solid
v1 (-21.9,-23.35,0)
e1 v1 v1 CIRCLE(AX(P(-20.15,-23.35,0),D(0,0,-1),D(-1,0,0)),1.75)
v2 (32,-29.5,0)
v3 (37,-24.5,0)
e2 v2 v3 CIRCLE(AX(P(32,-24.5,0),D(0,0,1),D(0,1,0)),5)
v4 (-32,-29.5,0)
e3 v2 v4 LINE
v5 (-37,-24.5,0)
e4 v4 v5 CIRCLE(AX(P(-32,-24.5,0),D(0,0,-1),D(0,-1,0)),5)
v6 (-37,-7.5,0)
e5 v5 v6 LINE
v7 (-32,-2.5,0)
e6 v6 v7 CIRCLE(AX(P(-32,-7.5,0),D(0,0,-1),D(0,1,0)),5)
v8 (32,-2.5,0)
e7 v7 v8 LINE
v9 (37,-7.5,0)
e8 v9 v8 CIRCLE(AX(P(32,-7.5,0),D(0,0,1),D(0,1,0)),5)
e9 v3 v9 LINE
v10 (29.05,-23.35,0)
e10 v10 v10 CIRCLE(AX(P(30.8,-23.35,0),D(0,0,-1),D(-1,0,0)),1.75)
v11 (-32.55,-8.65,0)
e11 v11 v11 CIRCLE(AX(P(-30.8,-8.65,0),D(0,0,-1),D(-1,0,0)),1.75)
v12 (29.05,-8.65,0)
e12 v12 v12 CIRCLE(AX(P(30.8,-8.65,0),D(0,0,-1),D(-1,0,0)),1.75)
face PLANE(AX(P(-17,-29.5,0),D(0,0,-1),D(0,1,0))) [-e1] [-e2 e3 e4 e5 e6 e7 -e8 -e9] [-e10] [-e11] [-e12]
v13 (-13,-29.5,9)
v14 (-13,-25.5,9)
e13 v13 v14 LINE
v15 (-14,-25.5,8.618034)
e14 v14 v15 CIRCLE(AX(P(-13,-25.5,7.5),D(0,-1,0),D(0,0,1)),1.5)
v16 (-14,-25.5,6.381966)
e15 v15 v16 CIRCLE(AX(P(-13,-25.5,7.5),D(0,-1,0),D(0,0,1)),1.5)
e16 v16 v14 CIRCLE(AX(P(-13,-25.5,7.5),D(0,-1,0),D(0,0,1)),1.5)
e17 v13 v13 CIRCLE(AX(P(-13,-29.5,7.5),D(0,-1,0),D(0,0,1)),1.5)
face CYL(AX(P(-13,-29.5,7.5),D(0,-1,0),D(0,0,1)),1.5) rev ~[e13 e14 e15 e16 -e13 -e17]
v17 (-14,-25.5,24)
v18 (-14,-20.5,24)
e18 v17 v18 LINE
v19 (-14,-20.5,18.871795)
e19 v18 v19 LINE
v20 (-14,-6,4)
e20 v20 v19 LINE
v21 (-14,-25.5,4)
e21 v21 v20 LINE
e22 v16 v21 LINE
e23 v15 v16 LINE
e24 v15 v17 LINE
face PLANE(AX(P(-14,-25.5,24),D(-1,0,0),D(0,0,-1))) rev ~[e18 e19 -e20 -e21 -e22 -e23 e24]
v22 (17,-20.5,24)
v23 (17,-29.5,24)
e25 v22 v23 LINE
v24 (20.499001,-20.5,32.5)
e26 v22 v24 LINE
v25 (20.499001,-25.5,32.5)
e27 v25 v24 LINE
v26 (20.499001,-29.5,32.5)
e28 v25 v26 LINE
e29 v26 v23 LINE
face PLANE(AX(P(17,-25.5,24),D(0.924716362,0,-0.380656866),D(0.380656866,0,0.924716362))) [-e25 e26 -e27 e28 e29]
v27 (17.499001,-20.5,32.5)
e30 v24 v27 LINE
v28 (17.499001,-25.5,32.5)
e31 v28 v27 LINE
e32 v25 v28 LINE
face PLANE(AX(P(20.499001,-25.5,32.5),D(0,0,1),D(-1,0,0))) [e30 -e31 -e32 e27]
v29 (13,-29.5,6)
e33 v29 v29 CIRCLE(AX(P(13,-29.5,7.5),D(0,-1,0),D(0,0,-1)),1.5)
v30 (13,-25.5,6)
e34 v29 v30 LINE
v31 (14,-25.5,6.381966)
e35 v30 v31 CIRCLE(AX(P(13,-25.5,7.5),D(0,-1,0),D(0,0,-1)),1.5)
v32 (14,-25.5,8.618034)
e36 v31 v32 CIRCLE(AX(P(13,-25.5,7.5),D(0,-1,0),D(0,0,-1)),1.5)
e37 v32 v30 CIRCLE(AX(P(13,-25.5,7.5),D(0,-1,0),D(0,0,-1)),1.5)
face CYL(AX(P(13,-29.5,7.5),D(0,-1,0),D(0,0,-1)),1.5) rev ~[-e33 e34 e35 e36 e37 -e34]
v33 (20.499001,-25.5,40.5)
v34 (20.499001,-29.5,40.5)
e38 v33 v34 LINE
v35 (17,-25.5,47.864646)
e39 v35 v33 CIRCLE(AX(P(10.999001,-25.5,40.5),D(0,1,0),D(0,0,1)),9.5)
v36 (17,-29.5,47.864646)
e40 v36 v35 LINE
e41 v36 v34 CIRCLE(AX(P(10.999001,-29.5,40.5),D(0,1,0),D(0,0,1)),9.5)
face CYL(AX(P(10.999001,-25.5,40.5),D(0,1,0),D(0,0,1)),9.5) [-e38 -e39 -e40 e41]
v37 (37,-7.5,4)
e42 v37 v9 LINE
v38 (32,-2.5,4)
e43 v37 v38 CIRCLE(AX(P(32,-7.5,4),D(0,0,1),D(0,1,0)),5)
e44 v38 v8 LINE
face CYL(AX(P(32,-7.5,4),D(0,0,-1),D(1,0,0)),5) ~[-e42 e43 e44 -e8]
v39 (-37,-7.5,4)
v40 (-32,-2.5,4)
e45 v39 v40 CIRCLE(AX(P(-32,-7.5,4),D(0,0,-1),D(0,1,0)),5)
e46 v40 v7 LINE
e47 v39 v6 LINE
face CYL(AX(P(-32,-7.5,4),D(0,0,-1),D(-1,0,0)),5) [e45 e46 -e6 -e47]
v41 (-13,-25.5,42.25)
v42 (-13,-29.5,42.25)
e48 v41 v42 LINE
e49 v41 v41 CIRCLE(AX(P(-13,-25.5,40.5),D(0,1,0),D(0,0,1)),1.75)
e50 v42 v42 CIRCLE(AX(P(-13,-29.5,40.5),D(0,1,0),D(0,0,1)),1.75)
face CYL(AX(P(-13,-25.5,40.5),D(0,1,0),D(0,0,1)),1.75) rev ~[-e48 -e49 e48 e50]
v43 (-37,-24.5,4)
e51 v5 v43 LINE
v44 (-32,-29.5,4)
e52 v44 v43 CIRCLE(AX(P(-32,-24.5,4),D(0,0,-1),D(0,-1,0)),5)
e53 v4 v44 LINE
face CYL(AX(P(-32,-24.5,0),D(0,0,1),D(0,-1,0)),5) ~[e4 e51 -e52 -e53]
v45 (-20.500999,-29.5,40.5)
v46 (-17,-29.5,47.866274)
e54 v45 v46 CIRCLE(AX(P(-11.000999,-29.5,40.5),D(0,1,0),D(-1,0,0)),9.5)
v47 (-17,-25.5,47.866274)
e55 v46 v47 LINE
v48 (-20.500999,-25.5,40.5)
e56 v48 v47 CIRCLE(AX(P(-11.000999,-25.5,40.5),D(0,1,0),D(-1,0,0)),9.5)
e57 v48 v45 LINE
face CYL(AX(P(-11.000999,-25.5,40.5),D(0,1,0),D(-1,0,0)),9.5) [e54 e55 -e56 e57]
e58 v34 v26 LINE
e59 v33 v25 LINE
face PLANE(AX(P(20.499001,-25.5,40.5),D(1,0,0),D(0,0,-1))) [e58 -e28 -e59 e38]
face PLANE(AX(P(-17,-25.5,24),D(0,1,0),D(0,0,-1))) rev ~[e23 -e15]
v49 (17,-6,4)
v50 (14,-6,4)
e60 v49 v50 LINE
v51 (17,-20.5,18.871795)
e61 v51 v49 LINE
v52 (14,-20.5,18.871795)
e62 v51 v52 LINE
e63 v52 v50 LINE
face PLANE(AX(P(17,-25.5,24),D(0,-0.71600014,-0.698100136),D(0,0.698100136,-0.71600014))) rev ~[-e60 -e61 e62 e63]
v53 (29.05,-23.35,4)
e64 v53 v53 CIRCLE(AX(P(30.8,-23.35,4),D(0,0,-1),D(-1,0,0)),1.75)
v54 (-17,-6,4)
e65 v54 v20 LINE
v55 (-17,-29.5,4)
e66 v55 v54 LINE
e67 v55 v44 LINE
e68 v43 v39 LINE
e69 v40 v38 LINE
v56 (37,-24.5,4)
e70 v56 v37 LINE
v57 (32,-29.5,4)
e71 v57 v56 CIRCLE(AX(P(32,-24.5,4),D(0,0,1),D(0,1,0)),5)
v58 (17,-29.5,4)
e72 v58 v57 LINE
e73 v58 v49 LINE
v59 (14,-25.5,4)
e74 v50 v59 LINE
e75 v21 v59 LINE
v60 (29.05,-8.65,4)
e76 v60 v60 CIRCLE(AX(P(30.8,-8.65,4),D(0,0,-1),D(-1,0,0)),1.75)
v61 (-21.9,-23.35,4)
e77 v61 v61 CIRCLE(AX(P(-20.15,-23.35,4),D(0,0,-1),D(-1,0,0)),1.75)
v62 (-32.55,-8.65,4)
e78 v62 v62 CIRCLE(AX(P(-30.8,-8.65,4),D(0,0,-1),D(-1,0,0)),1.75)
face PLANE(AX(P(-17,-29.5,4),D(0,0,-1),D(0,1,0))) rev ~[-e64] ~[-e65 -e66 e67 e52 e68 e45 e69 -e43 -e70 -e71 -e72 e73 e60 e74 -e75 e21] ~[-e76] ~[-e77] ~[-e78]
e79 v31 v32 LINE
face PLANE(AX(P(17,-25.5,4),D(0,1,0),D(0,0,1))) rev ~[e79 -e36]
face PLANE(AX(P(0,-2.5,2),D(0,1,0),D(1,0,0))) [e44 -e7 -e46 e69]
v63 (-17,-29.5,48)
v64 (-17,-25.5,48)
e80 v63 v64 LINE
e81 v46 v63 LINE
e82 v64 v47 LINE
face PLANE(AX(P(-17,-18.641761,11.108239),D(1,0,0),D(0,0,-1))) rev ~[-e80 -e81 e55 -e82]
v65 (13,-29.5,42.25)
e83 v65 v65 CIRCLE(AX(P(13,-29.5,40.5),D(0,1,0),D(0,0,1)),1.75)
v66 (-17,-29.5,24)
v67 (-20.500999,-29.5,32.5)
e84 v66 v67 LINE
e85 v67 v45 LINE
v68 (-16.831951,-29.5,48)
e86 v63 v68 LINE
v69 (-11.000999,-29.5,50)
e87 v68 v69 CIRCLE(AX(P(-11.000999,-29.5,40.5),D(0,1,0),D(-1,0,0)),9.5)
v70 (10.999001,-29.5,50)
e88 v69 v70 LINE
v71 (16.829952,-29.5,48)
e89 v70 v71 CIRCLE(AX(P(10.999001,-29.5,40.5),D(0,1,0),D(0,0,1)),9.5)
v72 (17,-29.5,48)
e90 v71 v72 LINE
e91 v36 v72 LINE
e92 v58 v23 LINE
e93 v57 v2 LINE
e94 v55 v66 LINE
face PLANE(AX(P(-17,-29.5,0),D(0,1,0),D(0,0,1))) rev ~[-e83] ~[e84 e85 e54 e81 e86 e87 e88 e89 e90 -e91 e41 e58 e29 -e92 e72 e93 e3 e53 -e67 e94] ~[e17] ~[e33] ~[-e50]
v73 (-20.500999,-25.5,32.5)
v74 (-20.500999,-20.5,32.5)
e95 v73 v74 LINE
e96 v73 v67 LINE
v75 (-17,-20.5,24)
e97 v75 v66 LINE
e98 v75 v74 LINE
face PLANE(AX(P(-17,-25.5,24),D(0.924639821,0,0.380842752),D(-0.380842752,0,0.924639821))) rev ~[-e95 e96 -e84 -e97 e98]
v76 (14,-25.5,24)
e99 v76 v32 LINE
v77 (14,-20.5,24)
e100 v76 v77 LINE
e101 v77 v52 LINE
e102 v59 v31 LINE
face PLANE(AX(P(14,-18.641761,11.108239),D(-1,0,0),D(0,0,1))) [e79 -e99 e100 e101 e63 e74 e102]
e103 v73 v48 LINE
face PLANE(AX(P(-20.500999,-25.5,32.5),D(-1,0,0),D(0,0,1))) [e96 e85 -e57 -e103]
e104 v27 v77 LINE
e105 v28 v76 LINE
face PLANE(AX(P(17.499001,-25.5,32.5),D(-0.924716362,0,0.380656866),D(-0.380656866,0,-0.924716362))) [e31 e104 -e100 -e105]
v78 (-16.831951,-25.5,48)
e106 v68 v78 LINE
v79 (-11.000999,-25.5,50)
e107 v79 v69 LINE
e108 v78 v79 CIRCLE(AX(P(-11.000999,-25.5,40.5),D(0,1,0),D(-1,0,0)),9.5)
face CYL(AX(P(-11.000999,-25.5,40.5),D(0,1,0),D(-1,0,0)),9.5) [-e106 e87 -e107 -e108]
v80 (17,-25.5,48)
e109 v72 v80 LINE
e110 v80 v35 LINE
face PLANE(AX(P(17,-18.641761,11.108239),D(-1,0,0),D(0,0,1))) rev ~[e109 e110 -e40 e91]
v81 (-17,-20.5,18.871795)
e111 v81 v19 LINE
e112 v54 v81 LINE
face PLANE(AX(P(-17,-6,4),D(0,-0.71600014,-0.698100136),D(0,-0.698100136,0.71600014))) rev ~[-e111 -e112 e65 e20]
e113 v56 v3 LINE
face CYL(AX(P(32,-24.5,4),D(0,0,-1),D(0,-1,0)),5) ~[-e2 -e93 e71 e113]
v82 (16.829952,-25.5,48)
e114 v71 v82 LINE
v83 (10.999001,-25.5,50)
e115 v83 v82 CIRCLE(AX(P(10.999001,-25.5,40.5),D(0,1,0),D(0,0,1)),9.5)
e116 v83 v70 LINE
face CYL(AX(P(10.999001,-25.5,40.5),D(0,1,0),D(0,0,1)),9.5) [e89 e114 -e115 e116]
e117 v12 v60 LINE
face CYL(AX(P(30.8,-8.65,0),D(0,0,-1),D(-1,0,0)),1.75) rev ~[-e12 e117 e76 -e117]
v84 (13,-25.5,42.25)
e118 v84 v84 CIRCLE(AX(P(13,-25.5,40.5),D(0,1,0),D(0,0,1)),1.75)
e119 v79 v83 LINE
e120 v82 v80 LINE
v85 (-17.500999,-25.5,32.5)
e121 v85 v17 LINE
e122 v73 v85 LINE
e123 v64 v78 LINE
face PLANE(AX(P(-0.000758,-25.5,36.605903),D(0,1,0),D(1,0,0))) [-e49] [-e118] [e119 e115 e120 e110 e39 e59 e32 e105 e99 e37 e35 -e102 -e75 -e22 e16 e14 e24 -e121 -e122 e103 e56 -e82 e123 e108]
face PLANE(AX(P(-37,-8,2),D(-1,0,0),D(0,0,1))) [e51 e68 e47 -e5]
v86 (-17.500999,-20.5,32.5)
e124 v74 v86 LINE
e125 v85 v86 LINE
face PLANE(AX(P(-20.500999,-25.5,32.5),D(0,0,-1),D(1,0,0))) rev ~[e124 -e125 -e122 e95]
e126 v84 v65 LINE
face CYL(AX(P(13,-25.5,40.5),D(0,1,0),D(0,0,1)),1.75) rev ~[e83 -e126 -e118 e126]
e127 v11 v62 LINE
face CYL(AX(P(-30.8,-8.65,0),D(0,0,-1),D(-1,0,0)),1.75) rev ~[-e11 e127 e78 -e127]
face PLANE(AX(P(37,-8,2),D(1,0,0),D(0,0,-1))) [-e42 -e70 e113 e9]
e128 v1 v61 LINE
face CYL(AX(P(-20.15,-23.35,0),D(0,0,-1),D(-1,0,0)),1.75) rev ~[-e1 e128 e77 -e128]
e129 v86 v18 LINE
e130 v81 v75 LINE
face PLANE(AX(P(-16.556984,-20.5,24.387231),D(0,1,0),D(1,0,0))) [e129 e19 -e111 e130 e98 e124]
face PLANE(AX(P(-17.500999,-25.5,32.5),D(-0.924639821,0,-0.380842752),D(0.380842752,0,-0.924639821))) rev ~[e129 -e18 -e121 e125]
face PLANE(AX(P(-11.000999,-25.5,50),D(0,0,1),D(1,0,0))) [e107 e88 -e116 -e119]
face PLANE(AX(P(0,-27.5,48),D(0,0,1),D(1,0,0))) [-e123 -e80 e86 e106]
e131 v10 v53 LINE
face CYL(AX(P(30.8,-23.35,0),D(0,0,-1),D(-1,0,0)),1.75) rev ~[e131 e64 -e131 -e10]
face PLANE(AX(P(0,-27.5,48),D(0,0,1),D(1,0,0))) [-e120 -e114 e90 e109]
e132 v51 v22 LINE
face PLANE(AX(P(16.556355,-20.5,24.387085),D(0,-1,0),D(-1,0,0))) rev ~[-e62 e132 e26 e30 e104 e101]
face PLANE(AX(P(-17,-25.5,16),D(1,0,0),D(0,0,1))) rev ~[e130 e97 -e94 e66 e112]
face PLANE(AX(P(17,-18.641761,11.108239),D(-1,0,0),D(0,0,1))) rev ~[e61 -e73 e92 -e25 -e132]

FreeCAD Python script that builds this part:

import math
import FreeCAD as App
import Part
import Sketcher
Q = App.Units.Quantity


def edges_at(feature, points):
    """Names of the edges that pass closest to the given points."""
    edges = feature.Shape.Edges
    near = lambda p: min(range(len(edges)), key=lambda i: edges[i].distToShape(Part.Vertex(*p))[0])
    return sorted({f"Edge{near(p) + 1}" for p in points})

doc = App.newDocument("Part")
body = doc.addObject("PartDesign::Body", "Body")

# Sketch on XY plane
sketch1 = body.newObject("Sketcher::SketchObject", "Sketch")
sketch1.AttachmentSupport = (doc.getObject("XY_Plane"), [""])
sketch1.MapMode = "FlatFace"
sketch1.addGeometry([
    Part.LineSegment(App.Vector(-17, 26, 0), App.Vector(-17, -26, 0)),
    Part.LineSegment(App.Vector(-17, -26, 0), App.Vector(17, -26, 0)),
    Part.LineSegment(App.Vector(17, -26, 0), App.Vector(17, 26, 0)),
    Part.LineSegment(App.Vector(17, 26, 0), App.Vector(-17, 26, 0)),
], False)
sketch1.addConstraint([
    Sketcher.Constraint("Coincident", 0, 2, 1, 1),
    Sketcher.Constraint("Coincident", 1, 2, 2, 1),
    Sketcher.Constraint("Coincident", 2, 2, 3, 1),
    Sketcher.Constraint("Coincident", 3, 2, 0, 1),
    Sketcher.Constraint("Vertical", 0),
    Sketcher.Constraint("Horizontal", 1),
    Sketcher.Constraint("Vertical", 2),
    Sketcher.Constraint("Horizontal", 3),
    Sketcher.Constraint("Symmetric", 0, 2, 2, 2, -1, 1),
    Sketcher.Constraint("DistanceX", 1, 1, 1, 2, Q("34 mm")),
    Sketcher.Constraint("DistanceY", 0, 2, 0, 1, Q("51 mm")),
])
pad1 = body.newObject("PartDesign::Pad", "Pad")
pad1.Profile = sketch1
pad1.Length = 4

# Sketch on XZ plane
sketch2 = body.newObject("Sketcher::SketchObject", "Sketch001")
sketch2.AttachmentSupport = (doc.getObject("XZ_Plane"), [""])
sketch2.MapMode = "FlatFace"
sketch2.AttachmentOffset = App.Placement(App.Vector(0, 0, 25.5), App.Rotation())
sketch2.addGeometry([
    Part.LineSegment(App.Vector(-17, 15, 0), App.Vector(-17, 0, 0)),
    Part.LineSegment(App.Vector(-17, 0, 0), App.Vector(17, 0, 0)),
    Part.LineSegment(App.Vector(17, 0, 0), App.Vector(17, 15, 0)),
    Part.LineSegment(App.Vector(17, 15, 0), App.Vector(-17, 15, 0)),
], False)
sketch2.addConstraint([
    Sketcher.Constraint("Coincident", 0, 2, 1, 1),
    Sketcher.Constraint("Coincident", 1, 2, 2, 1),
    Sketcher.Constraint("Coincident", 2, 2, 3, 1),
    Sketcher.Constraint("Coincident", 3, 2, 0, 1),
    Sketcher.Constraint("Vertical", 0),
    Sketcher.Constraint("Horizontal", 1),
    Sketcher.Constraint("Vertical", 2),
    Sketcher.Constraint("Horizontal", 3),
    Sketcher.Constraint("Symmetric", 0, 2, 1, 2, -1, 1),
    Sketcher.Constraint("DistanceX", 1, 1, 1, 2, Q("34 mm")),
    Sketcher.Constraint("DistanceY", 0, 2, 0, 1, Q("15 mm")),
])
pad2 = body.newObject("PartDesign::Pad", "Pad001")
pad2.Profile = sketch2
pad2.Length = 4

# Sketch on XZ plane
sketch3 = body.newObject("Sketcher::SketchObject", "Sketch002")
sketch3.AttachmentSupport = (doc.getObject("XZ_Plane"), [""])
sketch3.MapMode = "FlatFace"
sketch3.AttachmentOffset = App.Placement(App.Vector(0, 0, 29.5), App.Rotation())
sketch3.addGeometry([
    Part.Circle(App.Vector(13, 7.5, 0), App.Vector(0, 0, 1), 1.5),
    Part.Circle(App.Vector(-13, 7.5, 0), App.Vector(0, 0, 1), 1.5),
], False)
sketch3.addConstraint([
    Sketcher.Constraint("Equal", 0, 1),
    Sketcher.Constraint("Symmetric", 0, 3, 1, 3, -2),
    Sketcher.Constraint("Diameter", 0, Q("3 mm")),
    Sketcher.Constraint("DistanceX", -1, 1, 0, 3, Q("13 mm")),
    Sketcher.Constraint("DistanceY", -1, 1, 0, 3, Q("7.5 mm")),
])
pocket1 = body.newObject("PartDesign::Pocket", "Pocket")
pocket1.Profile = sketch3
pocket1.Length = 4

# Sketch on XZ plane
sketch4 = body.newObject("Sketcher::SketchObject", "Sketch003")
sketch4.AttachmentSupport = (doc.getObject("XZ_Plane"), [""])
sketch4.MapMode = "FlatFace"
sketch4.AttachmentOffset = App.Placement(App.Vector(0, 0, -25.5), App.Rotation())
sketch4.addGeometry([
    Part.LineSegment(App.Vector(-17, 0, 0), App.Vector(-17, 4, 0)),
    Part.LineSegment(App.Vector(-17, 4, 0), App.Vector(17, 4, 0)),
    Part.LineSegment(App.Vector(17, 4, 0), App.Vector(17, 0, 0)),
    Part.LineSegment(App.Vector(17, 0, 0), App.Vector(-17, 0, 0)),
], False)
sketch4.addConstraint([
    Sketcher.Constraint("Coincident", 0, 2, 1, 1),
    Sketcher.Constraint("Coincident", 1, 2, 2, 1),
    Sketcher.Constraint("Coincident", 2, 2, 3, 1),
    Sketcher.Constraint("Coincident", 3, 2, 0, 1),
    Sketcher.Constraint("Vertical", 0),
    Sketcher.Constraint("Horizontal", 1),
    Sketcher.Constraint("Vertical", 2),
    Sketcher.Constraint("Horizontal", 3),
    Sketcher.Constraint("Symmetric", 2, 2, 3, 2, -1, 1),
    Sketcher.Constraint("DistanceX", 1, 1, 1, 2, Q("34 mm")),
    Sketcher.Constraint("DistanceY", 0, 1, 0, 2, Q("4 mm")),
])
pocket2 = body.newObject("PartDesign::Pocket", "Pocket001")
pocket2.Profile = sketch4
pocket2.Length = 5
pocket2.Reversed = True

# Sketch on XZ plane
sketch5 = body.newObject("Sketcher::SketchObject", "Sketch004")
sketch5.AttachmentSupport = (doc.getObject("XZ_Plane"), [""])
sketch5.MapMode = "FlatFace"
sketch5.AttachmentOffset = App.Placement(App.Vector(0, 0, -20.5), App.Rotation())
sketch5.addGeometry([
    Part.LineSegment(App.Vector(-17, 0, 0), App.Vector(-17, 4, 0)),
    Part.LineSegment(App.Vector(-17, 4, 0), App.Vector(17, 4, 0)),
    Part.LineSegment(App.Vector(17, 4, 0), App.Vector(17, 0, 0)),
    Part.LineSegment(App.Vector(17, 0, 0), App.Vector(-17, 0, 0)),
], False)
sketch5.addConstraint([
    Sketcher.Constraint("Coincident", 0, 2, 1, 1),
    Sketcher.Constraint("Coincident", 1, 2, 2, 1),
    Sketcher.Constraint("Coincident", 2, 2, 3, 1),
    Sketcher.Constraint("Coincident", 3, 2, 0, 1),
    Sketcher.Constraint("Vertical", 0),
    Sketcher.Constraint("Horizontal", 1),
    Sketcher.Constraint("Vertical", 2),
    Sketcher.Constraint("Horizontal", 3),
    Sketcher.Constraint("Symmetric", 2, 2, 3, 2, -1, 1),
    Sketcher.Constraint("DistanceX", 1, 1, 1, 2, Q("34 mm")),
    Sketcher.Constraint("DistanceY", 0, 1, 0, 2, Q("4 mm")),
])
pocket3 = body.newObject("PartDesign::Pocket", "Pocket002")
pocket3.Profile = sketch5
pocket3.Length = 7
pocket3.Reversed = True

# Sketch on XY plane
sketch6 = body.newObject("Sketcher::SketchObject", "Sketch005")
sketch6.AttachmentSupport = (doc.getObject("XY_Plane"), [""])
sketch6.MapMode = "FlatFace"
sketch6.AttachmentOffset = App.Placement(App.Vector(0, 0, 15), App.Rotation())
sketch6.addGeometry([
    Part.LineSegment(App.Vector(-17, -25.5, 0), App.Vector(-17, -29.5, 0)),
    Part.LineSegment(App.Vector(-17, -29.5, 0), App.Vector(17, -29.5, 0)),
    Part.LineSegment(App.Vector(17, -29.5, 0), App.Vector(17, -25.5, 0)),
    Part.LineSegment(App.Vector(17, -25.5, 0), App.Vector(-17, -25.5, 0)),
], False)
sketch6.addConstraint([
    Sketcher.Constraint("Coincident", 0, 2, 1, 1),
    Sketcher.Constraint("Coincident", 1, 2, 2, 1),
    Sketcher.Constraint("Coincident", 2, 2, 3, 1),
    Sketcher.Constraint("Coincident", 3, 2, 0, 1),
    Sketcher.Constraint("Vertical", 0),
    Sketcher.Constraint("Horizontal", 1),
    Sketcher.Constraint("Vertical", 2),
    Sketcher.Constraint("Horizontal", 3),
    Sketcher.Constraint("DistanceX", 1, 1, 1, 2, Q("34 mm")),
    Sketcher.Constraint("DistanceY", 0, 2, 0, 1, Q("4 mm")),
    Sketcher.Constraint("DistanceX", 0, 2, -1, 1, Q("17 mm")),
    Sketcher.Constraint("DistanceY", 0, 2, -1, 1, Q("29.5 mm")),
])
pad3 = body.newObject("PartDesign::Pad", "Pad002")
pad3.Profile = sketch6
pad3.Length = 33

# Sketch on XZ plane
sketch7 = body.newObject("Sketcher::SketchObject", "Sketch006")
sketch7.AttachmentSupport = (doc.getObject("XZ_Plane"), [""])
sketch7.MapMode = "FlatFace"
sketch7.AttachmentOffset = App.Placement(App.Vector(0, 0, 25.5), App.Rotation())
sketch7.addGeometry([
    Part.Circle(App.Vector(13, 40.5, 0), App.Vector(0, 0, 1), 1.8),
    Part.Circle(App.Vector(-13, 40.5, 0), App.Vector(0, 0, 1), 1.8),
], False)
sketch7.addConstraint([
    Sketcher.Constraint("Equal", 0, 1),
    Sketcher.Constraint("Symmetric", 0, 3, 1, 3, -2),
    Sketcher.Constraint("Diameter", 0, Q("3.5 mm")),
    Sketcher.Constraint("DistanceX", -1, 1, 0, 3, Q("13 mm")),
    Sketcher.Constraint("DistanceY", -1, 1, 0, 3, Q("40.5 mm")),
])
pocket4 = body.newObject("PartDesign::Pocket", "Pocket003")
pocket4.Profile = sketch7
pocket4.Length = 44
pocket4.Reversed = True

# Sketch on YZ plane
sketch8 = body.newObject("Sketcher::SketchObject", "Sketch007")
sketch8.AttachmentSupport = (doc.getObject("YZ_Plane"), [""])
sketch8.MapMode = "FlatFace"
sketch8.AttachmentOffset = App.Placement(App.Vector(0, 0, -17), App.Rotation())
sketch8.addGeometry([
    Part.LineSegment(App.Vector(-6, 4, 0), App.Vector(-26, 4, 0)),
    Part.LineSegment(App.Vector(-26, 4, 0), App.Vector(-26, 24, 0)),
    Part.LineSegment(App.Vector(-26, 24, 0), App.Vector(-6, 4, 0)),
], False)
sketch8.addConstraint([
    Sketcher.Constraint("Coincident", 0, 2, 1, 1),
    Sketcher.Constraint("Coincident", 1, 2, 2, 1),
    Sketcher.Constraint("Coincident", 2, 2, 0, 1),
    Sketcher.Constraint("Horizontal", 0),
    Sketcher.Constraint("Vertical", 1),
    Sketcher.Constraint("DistanceY", 1, 1, 1, 2, Q("20 mm")),
    Sketcher.Constraint("DistanceX", 0, 2, 0, 1, Q("19.5 mm")),
    Sketcher.Constraint("DistanceY", -1, 1, 0, 2, Q("4 mm")),
    Sketcher.Constraint("DistanceX", 2, 2, -1, 1, Q("6 mm")),
])
pad4 = body.newObject("PartDesign::Pad", "Pad003")
pad4.Profile = sketch8
pad4.Length = 3

# Sketch on YZ plane
sketch9 = body.newObject("Sketcher::SketchObject", "Sketch008")
sketch9.AttachmentSupport = (doc.getObject("YZ_Plane"), [""])
sketch9.MapMode = "FlatFace"
sketch9.AttachmentOffset = App.Placement(App.Vector(0, 0, 17), App.Rotation())
sketch9.addGeometry([
    Part.LineSegment(App.Vector(-6, 4, 0), App.Vector(-26, 24, 0)),
    Part.LineSegment(App.Vector(-26, 24, 0), App.Vector(-26, 4, 0)),
    Part.LineSegment(App.Vector(-26, 4, 0), App.Vector(-6, 4, 0)),
], False)
sketch9.addConstraint([
    Sketcher.Constraint("Coincident", 0, 2, 1, 1),
    Sketcher.Constraint("Coincident", 1, 2, 2, 1),
    Sketcher.Constraint("Coincident", 2, 2, 0, 1),
    Sketcher.Constraint("Vertical", 1),
    Sketcher.Constraint("Horizontal", 2),
    Sketcher.Constraint("DistanceY", 1, 2, 1, 1, Q("20 mm")),
    Sketcher.Constraint("DistanceX", 2, 1, 2, 2, Q("19.5 mm")),
    Sketcher.Constraint("DistanceY", -1, 1, 0, 2, Q("24 mm")),
    Sketcher.Constraint("DistanceX", 2, 2, -1, 1, Q("6 mm")),
])
pad5 = body.newObject("PartDesign::Pad", "Pad004")
pad5.Profile = sketch9
pad5.Length = 3
pad5.Reversed = True

# Sketch on XZ plane
sketch10 = body.newObject("Sketcher::SketchObject", "Sketch009")
sketch10.AttachmentSupport = (doc.getObject("XZ_Plane"), [""])
sketch10.MapMode = "FlatFace"
sketch10.AttachmentOffset = App.Placement(App.Vector(0, 0, 25.5), App.Rotation())
sketch10.addGeometry([
    Part.LineSegment(App.Vector(20.5, 32.5, 0), App.Vector(17, 24, 0)),  # 0
    Part.LineSegment(App.Vector(17, 24, 0), App.Vector(-17, 24, 0)),  # 1
    Part.LineSegment(App.Vector(-17, 24, 0), App.Vector(-20.5, 32.5, 0)),  # 2
    Part.LineSegment(App.Vector(-20.5, 32.5, 0), App.Vector(-20.5, 40.5, 0)),  # 3
    Part.ArcOfCircle(Part.Circle(App.Vector(-11, 40.5, 0), App.Vector(0, 0, 1), 9.5), math.radians(90), math.radians(180)),  # 4
    Part.LineSegment(App.Vector(-11, 50, 0), App.Vector(11, 50, 0)),  # 5
    Part.ArcOfCircle(Part.Circle(App.Vector(11, 40.5, 0), App.Vector(0, 0, 1), 9.5), math.radians(0), math.radians(90)),  # 6
    Part.LineSegment(App.Vector(20.5, 40.5, 0), App.Vector(20.5, 32.5, 0)),  # 7
    Part.Circle(App.Vector(-13, 40.5, 0), App.Vector(0, 0, 1), 1.8),  # 8
    Part.Circle(App.Vector(13, 40.5, 0), App.Vector(0, 0, 1), 1.8),  # 9
], False)
sketch10.addConstraint([
    Sketcher.Constraint("Coincident", 0, 2, 1, 1),
    Sketcher.Constraint("Coincident", 1, 2, 2, 1),
    Sketcher.Constraint("Coincident", 2, 2, 3, 1),
    Sketcher.Constraint("Tangent", 3, 2, 4, 2),
    Sketcher.Constraint("Tangent", 4, 1, 5, 1),
    Sketcher.Constraint("Tangent", 5, 2, 6, 2),
    Sketcher.Constraint("Tangent", 6, 1, 7, 1),
    Sketcher.Constraint("Coincident", 7, 2, 0, 1),
    Sketcher.Constraint("Horizontal", 1),
    Sketcher.Constraint("Vertical", 3),
    Sketcher.Constraint("Horizontal", 5),
    Sketcher.Constraint("Vertical", 7),
    Sketcher.Constraint("Equal", 4, 6),
    Sketcher.Constraint("Equal", 8, 9),
    Sketcher.Constraint("Symmetric", 8, 3, 9, 3, -2),
    Sketcher.Constraint("Horizontal", 6, 3, 8, 3),
    Sketcher.Constraint("Horizontal", 2, 2, 7, 2),
    Sketcher.Constraint("Diameter", 8, Q("3.5 mm")),
    Sketcher.Constraint("Radius", 4, Q("9.5 mm")),
    Sketcher.Constraint("DistanceX", 1, 2, 1, 1, Q("34 mm")),
    Sketcher.Constraint("DistanceX", 5, 1, 5, 2, Q("22 mm")),
    Sketcher.Constraint("DistanceY", 3, 1, 3, 2, Q("8 mm")),
    Sketcher.Constraint("DistanceX", 8, 3, -1, 1, Q("13 mm")),
    Sketcher.Constraint("DistanceX", -1, 1, 0, 2, Q("17 mm")),
    Sketcher.Constraint("DistanceY", -1, 1, 0, 2, Q("24 mm")),
    Sketcher.Constraint("DistanceY", -1, 1, 4, 1, Q("50 mm")),
    Sketcher.Constraint("DistanceX", 4, 3, -1, 1, Q("11.000999 mm")),
])
pad6 = body.newObject("PartDesign::Pad", "Pad005")
pad6.Profile = sketch10
pad6.Length = 4

# Sketch on XZ plane
sketch11 = body.newObject("Sketcher::SketchObject", "Sketch010")
sketch11.AttachmentSupport = (doc.getObject("XZ_Plane"), [""])
sketch11.MapMode = "FlatFace"
sketch11.AttachmentOffset = App.Placement(App.Vector(0, 0, 25.5), App.Rotation())
sketch11.addGeometry([
    Part.LineSegment(App.Vector(-20.5, 32.5, 0), App.Vector(-17.5, 32.5, 0)),  # 0
    Part.LineSegment(App.Vector(-17.5, 32.5, 0), App.Vector(-14, 24, 0)),  # 1
    Part.LineSegment(App.Vector(-14, 24, 0), App.Vector(-14, 16, 0)),  # 2
    Part.LineSegment(App.Vector(-14, 16, 0), App.Vector(-17, 16, 0)),  # 3
    Part.LineSegment(App.Vector(-17, 16, 0), App.Vector(-17, 24, 0)),  # 4
    Part.LineSegment(App.Vector(-17, 24, 0), App.Vector(-20.5, 32.5, 0)),  # 5
    Part.LineSegment(App.Vector(20.5, 32.5, 0), App.Vector(17, 24, 0)),  # 6
    Part.LineSegment(App.Vector(17, 24, 0), App.Vector(17, 16, 0)),  # 7
    Part.LineSegment(App.Vector(17, 16, 0), App.Vector(14, 16, 0)),  # 8
    Part.LineSegment(App.Vector(14, 16, 0), App.Vector(14, 24, 0)),  # 9
    Part.LineSegment(App.Vector(14, 24, 0), App.Vector(17.5, 32.5, 0)),  # 10
    Part.LineSegment(App.Vector(17.5, 32.5, 0), App.Vector(20.5, 32.5, 0)),  # 11
], False)
sketch11.addConstraint([
    Sketcher.Constraint("Coincident", 0, 2, 1, 1),
    Sketcher.Constraint("Coincident", 1, 2, 2, 1),
    Sketcher.Constraint("Coincident", 2, 2, 3, 1),
    Sketcher.Constraint("Coincident", 3, 2, 4, 1),
    Sketcher.Constraint("Coincident", 4, 2, 5, 1),
    Sketcher.Constraint("Coincident", 5, 2, 0, 1),
    Sketcher.Constraint("Coincident", 6, 2, 7, 1),
    Sketcher.Constraint("Coincident", 7, 2, 8, 1),
    Sketcher.Constraint("Coincident", 8, 2, 9, 1),
    Sketcher.Constraint("Coincident", 9, 2, 10, 1),
    Sketcher.Constraint("Coincident", 10, 2, 11, 1),
    Sketcher.Constraint("Coincident", 11, 2, 6, 1),
    Sketcher.Constraint("Horizontal", 0),
    Sketcher.Constraint("Vertical", 2),
    Sketcher.Constraint("Horizontal", 3),
    Sketcher.Constraint("Vertical", 4),
    Sketcher.Constraint("Vertical", 7),
    Sketcher.Constraint("Horizontal", 8),
    Sketcher.Constraint("Vertical", 9),
    Sketcher.Constraint("Horizontal", 11),
    Sketcher.Constraint("Symmetric", 4, 2, 6, 2, -2),
    Sketcher.Constraint("Symmetric", 2, 2, 8, 2, -2),
    Sketcher.Constraint("Parallel", 1, 5),
    Sketcher.Constraint("Parallel", 6, 10),
    Sketcher.Constraint("Horizontal", 1, 2, 4, 2),
    Sketcher.Constraint("Horizontal", 6, 2, 9, 2),
    Sketcher.Constraint("Horizontal", 5, 2, 10, 2),
    Sketcher.Constraint("DistanceX", 0, 1, 0, 2, Q("3 mm")),
    Sketcher.Constraint("DistanceY", 2, 2, 2, 1, Q("8 mm")),
    Sketcher.Constraint("DistanceX", 1, 2, -1, 1, Q("14 mm")),
    Sketcher.Constraint("DistanceY", -1, 1, 1, 2, Q("24 mm")),
    Sketcher.Constraint("DistanceY", -1, 1, 0, 2, Q("32.5 mm")),
    Sketcher.Constraint("DistanceX", 0, 2, -1, 1, Q("17.500999 mm")),
    Sketcher.Constraint("DistanceX", -1, 1, 10, 2, Q("17.499001 mm")),
])
pad7 = body.newObject("PartDesign::Pad", "Pad006")
pad7.Profile = sketch11
pad7.Length = 5
pad7.Reversed = True

# Sketch on YZ plane
sketch12 = body.newObject("Sketcher::SketchObject", "Sketch011")
sketch12.AttachmentSupport = (doc.getObject("YZ_Plane"), [""])
sketch12.MapMode = "FlatFace"
sketch12.AttachmentOffset = App.Placement(App.Vector(0, 0, 17), App.Rotation())
sketch12.addGeometry([
    Part.LineSegment(App.Vector(13.5, 4, 0), App.Vector(-29.5, 4, 0)),
    Part.LineSegment(App.Vector(-29.5, 4, 0), App.Vector(-29.5, 0, 0)),
    Part.LineSegment(App.Vector(-29.5, 0, 0), App.Vector(13.5, 0, 0)),
    Part.LineSegment(App.Vector(13.5, 0, 0), App.Vector(13.5, 4, 0)),
], False)
sketch12.addConstraint([
    Sketcher.Constraint("Coincident", 0, 2, 1, 1),
    Sketcher.Constraint("Coincident", 1, 2, 2, 1),
    Sketcher.Constraint("Coincident", 2, 2, 3, 1),
    Sketcher.Constraint("Coincident", 3, 2, 0, 1),
    Sketcher.Constraint("Horizontal", 0),
    Sketcher.Constraint("Vertical", 1),
    Sketcher.Constraint("Horizontal", 2),
    Sketcher.Constraint("Vertical", 3),
    Sketcher.Constraint("PointOnObject", 1, 2, -1),
    Sketcher.Constraint("DistanceX", 0, 2, 0, 1, Q("43 mm")),
    Sketcher.Constraint("DistanceY", 1, 2, 1, 1, Q("4 mm")),
    Sketcher.Constraint("DistanceX", 0, 2, -1, 1, Q("29.5 mm")),
])
pad8 = body.newObject("PartDesign::Pad", "Pad007")
pad8.Profile = sketch12
pad8.Length = 20

# Sketch on YZ plane
sketch13 = body.newObject("Sketcher::SketchObject", "Sketch012")
sketch13.AttachmentSupport = (doc.getObject("YZ_Plane"), [""])
sketch13.MapMode = "FlatFace"
sketch13.AttachmentOffset = App.Placement(App.Vector(0, 0, -17), App.Rotation())
sketch13.addGeometry([
    Part.LineSegment(App.Vector(13.5, 0, 0), App.Vector(-29.5, 0, 0)),
    Part.LineSegment(App.Vector(-29.5, 0, 0), App.Vector(-29.5, 4, 0)),
    Part.LineSegment(App.Vector(-29.5, 4, 0), App.Vector(13.5, 4, 0)),
    Part.LineSegment(App.Vector(13.5, 4, 0), App.Vector(13.5, 0, 0)),
], False)
sketch13.addConstraint([
    Sketcher.Constraint("Coincident", 0, 2, 1, 1),
    Sketcher.Constraint("Coincident", 1, 2, 2, 1),
    Sketcher.Constraint("Coincident", 2, 2, 3, 1),
    Sketcher.Constraint("Coincident", 3, 2, 0, 1),
    Sketcher.Constraint("Horizontal", 0),
    Sketcher.Constraint("Vertical", 1),
    Sketcher.Constraint("Horizontal", 2),
    Sketcher.Constraint("Vertical", 3),
    Sketcher.Constraint("PointOnObject", 0, 2, -1),
    Sketcher.Constraint("DistanceX", 0, 2, 0, 1, Q("43 mm")),
    Sketcher.Constraint("DistanceY", 1, 1, 1, 2, Q("4 mm")),
    Sketcher.Constraint("DistanceX", 0, 2, -1, 1, Q("29.5 mm")),
])
pad9 = body.newObject("PartDesign::Pad", "Pad008")
pad9.Profile = sketch13
pad9.Length = 20
pad9.Reversed = True

# Sketch on XZ plane
sketch14 = body.newObject("Sketcher::SketchObject", "Sketch013")
sketch14.AttachmentSupport = (doc.getObject("XZ_Plane"), [""])
sketch14.MapMode = "FlatFace"
sketch14.AttachmentOffset = App.Placement(App.Vector(0, 0, -13.5), App.Rotation())
sketch14.addGeometry([
    Part.LineSegment(App.Vector(-37, 0, 0), App.Vector(-37, 4, 0)),
    Part.LineSegment(App.Vector(-37, 4, 0), App.Vector(37, 4, 0)),
    Part.LineSegment(App.Vector(37, 4, 0), App.Vector(37, 0, 0)),
    Part.LineSegment(App.Vector(37, 0, 0), App.Vector(-37, 0, 0)),
], False)
sketch14.addConstraint([
    Sketcher.Constraint("Coincident", 0, 2, 1, 1),
    Sketcher.Constraint("Coincident", 1, 2, 2, 1),
    Sketcher.Constraint("Coincident", 2, 2, 3, 1),
    Sketcher.Constraint("Coincident", 3, 2, 0, 1),
    Sketcher.Constraint("Vertical", 0),
    Sketcher.Constraint("Horizontal", 1),
    Sketcher.Constraint("Vertical", 2),
    Sketcher.Constraint("Horizontal", 3),
    Sketcher.Constraint("Symmetric", 2, 2, 3, 2, -1, 1),
    Sketcher.Constraint("DistanceX", 1, 1, 1, 2, Q("74 mm")),
    Sketcher.Constraint("DistanceY", 0, 1, 0, 2, Q("4 mm")),
])
pocket5 = body.newObject("PartDesign::Pocket", "Pocket004")
pocket5.Profile = sketch14
pocket5.Length = 16
pocket5.Reversed = True

# Sketch on XY plane
sketch15 = body.newObject("Sketcher::SketchObject", "Sketch014")
sketch15.AttachmentSupport = (doc.getObject("XY_Plane"), [""])
sketch15.MapMode = "FlatFace"
sketch15.addGeometry([
    Part.Circle(App.Vector(-30.8, -8.7, 0), App.Vector(0, 0, 1), 1.8),
    Part.Circle(App.Vector(30.8, -8.7, 0), App.Vector(0, 0, 1), 1.8),
    Part.Circle(App.Vector(30.8, -23.4, 0), App.Vector(0, 0, 1), 1.8),
    Part.Circle(App.Vector(-20.1, -23.4, 0), App.Vector(0, 0, 1), 1.8),
], False)
sketch15.addConstraint([
    Sketcher.Constraint("Equal", 0, 1),
    Sketcher.Constraint("Equal", 1, 2),
    Sketcher.Constraint("Equal", 2, 3),
    Sketcher.Constraint("Symmetric", 0, 3, 1, 3, -2),
    Sketcher.Constraint("Horizontal", 2, 3, 3, 3),
    Sketcher.Constraint("Vertical", 1, 3, 2, 3),
    Sketcher.Constraint("Diameter", 0, Q("3.5 mm")),
    Sketcher.Constraint("DistanceX", 0, 3, -1, 1, Q("30.8 mm")),
    Sketcher.Constraint("DistanceY", 2, 3, 1, 3, Q("14.7 mm")),
    Sketcher.Constraint("DistanceY", 0, 3, -1, 1, Q("8.65 mm")),
    Sketcher.Constraint("DistanceX", 3, 3, -1, 1, Q("20.15 mm")),
])
pocket6 = body.newObject("PartDesign::Pocket", "Pocket005")
pocket6.Profile = sketch15
pocket6.Length = 16
pocket6.Reversed = True
doc.recompute()

fillet = body.newObject("PartDesign::Fillet", "Fillet")
fillet.Base = (pocket6, edges_at(pocket6, [
    (37, -29.5, 2),
    (-37, -29.5, 2),
    (-37, -2.5, 2),
    (37, -2.5, 2),
]))
fillet.Radius = 5

doc.recompute()
